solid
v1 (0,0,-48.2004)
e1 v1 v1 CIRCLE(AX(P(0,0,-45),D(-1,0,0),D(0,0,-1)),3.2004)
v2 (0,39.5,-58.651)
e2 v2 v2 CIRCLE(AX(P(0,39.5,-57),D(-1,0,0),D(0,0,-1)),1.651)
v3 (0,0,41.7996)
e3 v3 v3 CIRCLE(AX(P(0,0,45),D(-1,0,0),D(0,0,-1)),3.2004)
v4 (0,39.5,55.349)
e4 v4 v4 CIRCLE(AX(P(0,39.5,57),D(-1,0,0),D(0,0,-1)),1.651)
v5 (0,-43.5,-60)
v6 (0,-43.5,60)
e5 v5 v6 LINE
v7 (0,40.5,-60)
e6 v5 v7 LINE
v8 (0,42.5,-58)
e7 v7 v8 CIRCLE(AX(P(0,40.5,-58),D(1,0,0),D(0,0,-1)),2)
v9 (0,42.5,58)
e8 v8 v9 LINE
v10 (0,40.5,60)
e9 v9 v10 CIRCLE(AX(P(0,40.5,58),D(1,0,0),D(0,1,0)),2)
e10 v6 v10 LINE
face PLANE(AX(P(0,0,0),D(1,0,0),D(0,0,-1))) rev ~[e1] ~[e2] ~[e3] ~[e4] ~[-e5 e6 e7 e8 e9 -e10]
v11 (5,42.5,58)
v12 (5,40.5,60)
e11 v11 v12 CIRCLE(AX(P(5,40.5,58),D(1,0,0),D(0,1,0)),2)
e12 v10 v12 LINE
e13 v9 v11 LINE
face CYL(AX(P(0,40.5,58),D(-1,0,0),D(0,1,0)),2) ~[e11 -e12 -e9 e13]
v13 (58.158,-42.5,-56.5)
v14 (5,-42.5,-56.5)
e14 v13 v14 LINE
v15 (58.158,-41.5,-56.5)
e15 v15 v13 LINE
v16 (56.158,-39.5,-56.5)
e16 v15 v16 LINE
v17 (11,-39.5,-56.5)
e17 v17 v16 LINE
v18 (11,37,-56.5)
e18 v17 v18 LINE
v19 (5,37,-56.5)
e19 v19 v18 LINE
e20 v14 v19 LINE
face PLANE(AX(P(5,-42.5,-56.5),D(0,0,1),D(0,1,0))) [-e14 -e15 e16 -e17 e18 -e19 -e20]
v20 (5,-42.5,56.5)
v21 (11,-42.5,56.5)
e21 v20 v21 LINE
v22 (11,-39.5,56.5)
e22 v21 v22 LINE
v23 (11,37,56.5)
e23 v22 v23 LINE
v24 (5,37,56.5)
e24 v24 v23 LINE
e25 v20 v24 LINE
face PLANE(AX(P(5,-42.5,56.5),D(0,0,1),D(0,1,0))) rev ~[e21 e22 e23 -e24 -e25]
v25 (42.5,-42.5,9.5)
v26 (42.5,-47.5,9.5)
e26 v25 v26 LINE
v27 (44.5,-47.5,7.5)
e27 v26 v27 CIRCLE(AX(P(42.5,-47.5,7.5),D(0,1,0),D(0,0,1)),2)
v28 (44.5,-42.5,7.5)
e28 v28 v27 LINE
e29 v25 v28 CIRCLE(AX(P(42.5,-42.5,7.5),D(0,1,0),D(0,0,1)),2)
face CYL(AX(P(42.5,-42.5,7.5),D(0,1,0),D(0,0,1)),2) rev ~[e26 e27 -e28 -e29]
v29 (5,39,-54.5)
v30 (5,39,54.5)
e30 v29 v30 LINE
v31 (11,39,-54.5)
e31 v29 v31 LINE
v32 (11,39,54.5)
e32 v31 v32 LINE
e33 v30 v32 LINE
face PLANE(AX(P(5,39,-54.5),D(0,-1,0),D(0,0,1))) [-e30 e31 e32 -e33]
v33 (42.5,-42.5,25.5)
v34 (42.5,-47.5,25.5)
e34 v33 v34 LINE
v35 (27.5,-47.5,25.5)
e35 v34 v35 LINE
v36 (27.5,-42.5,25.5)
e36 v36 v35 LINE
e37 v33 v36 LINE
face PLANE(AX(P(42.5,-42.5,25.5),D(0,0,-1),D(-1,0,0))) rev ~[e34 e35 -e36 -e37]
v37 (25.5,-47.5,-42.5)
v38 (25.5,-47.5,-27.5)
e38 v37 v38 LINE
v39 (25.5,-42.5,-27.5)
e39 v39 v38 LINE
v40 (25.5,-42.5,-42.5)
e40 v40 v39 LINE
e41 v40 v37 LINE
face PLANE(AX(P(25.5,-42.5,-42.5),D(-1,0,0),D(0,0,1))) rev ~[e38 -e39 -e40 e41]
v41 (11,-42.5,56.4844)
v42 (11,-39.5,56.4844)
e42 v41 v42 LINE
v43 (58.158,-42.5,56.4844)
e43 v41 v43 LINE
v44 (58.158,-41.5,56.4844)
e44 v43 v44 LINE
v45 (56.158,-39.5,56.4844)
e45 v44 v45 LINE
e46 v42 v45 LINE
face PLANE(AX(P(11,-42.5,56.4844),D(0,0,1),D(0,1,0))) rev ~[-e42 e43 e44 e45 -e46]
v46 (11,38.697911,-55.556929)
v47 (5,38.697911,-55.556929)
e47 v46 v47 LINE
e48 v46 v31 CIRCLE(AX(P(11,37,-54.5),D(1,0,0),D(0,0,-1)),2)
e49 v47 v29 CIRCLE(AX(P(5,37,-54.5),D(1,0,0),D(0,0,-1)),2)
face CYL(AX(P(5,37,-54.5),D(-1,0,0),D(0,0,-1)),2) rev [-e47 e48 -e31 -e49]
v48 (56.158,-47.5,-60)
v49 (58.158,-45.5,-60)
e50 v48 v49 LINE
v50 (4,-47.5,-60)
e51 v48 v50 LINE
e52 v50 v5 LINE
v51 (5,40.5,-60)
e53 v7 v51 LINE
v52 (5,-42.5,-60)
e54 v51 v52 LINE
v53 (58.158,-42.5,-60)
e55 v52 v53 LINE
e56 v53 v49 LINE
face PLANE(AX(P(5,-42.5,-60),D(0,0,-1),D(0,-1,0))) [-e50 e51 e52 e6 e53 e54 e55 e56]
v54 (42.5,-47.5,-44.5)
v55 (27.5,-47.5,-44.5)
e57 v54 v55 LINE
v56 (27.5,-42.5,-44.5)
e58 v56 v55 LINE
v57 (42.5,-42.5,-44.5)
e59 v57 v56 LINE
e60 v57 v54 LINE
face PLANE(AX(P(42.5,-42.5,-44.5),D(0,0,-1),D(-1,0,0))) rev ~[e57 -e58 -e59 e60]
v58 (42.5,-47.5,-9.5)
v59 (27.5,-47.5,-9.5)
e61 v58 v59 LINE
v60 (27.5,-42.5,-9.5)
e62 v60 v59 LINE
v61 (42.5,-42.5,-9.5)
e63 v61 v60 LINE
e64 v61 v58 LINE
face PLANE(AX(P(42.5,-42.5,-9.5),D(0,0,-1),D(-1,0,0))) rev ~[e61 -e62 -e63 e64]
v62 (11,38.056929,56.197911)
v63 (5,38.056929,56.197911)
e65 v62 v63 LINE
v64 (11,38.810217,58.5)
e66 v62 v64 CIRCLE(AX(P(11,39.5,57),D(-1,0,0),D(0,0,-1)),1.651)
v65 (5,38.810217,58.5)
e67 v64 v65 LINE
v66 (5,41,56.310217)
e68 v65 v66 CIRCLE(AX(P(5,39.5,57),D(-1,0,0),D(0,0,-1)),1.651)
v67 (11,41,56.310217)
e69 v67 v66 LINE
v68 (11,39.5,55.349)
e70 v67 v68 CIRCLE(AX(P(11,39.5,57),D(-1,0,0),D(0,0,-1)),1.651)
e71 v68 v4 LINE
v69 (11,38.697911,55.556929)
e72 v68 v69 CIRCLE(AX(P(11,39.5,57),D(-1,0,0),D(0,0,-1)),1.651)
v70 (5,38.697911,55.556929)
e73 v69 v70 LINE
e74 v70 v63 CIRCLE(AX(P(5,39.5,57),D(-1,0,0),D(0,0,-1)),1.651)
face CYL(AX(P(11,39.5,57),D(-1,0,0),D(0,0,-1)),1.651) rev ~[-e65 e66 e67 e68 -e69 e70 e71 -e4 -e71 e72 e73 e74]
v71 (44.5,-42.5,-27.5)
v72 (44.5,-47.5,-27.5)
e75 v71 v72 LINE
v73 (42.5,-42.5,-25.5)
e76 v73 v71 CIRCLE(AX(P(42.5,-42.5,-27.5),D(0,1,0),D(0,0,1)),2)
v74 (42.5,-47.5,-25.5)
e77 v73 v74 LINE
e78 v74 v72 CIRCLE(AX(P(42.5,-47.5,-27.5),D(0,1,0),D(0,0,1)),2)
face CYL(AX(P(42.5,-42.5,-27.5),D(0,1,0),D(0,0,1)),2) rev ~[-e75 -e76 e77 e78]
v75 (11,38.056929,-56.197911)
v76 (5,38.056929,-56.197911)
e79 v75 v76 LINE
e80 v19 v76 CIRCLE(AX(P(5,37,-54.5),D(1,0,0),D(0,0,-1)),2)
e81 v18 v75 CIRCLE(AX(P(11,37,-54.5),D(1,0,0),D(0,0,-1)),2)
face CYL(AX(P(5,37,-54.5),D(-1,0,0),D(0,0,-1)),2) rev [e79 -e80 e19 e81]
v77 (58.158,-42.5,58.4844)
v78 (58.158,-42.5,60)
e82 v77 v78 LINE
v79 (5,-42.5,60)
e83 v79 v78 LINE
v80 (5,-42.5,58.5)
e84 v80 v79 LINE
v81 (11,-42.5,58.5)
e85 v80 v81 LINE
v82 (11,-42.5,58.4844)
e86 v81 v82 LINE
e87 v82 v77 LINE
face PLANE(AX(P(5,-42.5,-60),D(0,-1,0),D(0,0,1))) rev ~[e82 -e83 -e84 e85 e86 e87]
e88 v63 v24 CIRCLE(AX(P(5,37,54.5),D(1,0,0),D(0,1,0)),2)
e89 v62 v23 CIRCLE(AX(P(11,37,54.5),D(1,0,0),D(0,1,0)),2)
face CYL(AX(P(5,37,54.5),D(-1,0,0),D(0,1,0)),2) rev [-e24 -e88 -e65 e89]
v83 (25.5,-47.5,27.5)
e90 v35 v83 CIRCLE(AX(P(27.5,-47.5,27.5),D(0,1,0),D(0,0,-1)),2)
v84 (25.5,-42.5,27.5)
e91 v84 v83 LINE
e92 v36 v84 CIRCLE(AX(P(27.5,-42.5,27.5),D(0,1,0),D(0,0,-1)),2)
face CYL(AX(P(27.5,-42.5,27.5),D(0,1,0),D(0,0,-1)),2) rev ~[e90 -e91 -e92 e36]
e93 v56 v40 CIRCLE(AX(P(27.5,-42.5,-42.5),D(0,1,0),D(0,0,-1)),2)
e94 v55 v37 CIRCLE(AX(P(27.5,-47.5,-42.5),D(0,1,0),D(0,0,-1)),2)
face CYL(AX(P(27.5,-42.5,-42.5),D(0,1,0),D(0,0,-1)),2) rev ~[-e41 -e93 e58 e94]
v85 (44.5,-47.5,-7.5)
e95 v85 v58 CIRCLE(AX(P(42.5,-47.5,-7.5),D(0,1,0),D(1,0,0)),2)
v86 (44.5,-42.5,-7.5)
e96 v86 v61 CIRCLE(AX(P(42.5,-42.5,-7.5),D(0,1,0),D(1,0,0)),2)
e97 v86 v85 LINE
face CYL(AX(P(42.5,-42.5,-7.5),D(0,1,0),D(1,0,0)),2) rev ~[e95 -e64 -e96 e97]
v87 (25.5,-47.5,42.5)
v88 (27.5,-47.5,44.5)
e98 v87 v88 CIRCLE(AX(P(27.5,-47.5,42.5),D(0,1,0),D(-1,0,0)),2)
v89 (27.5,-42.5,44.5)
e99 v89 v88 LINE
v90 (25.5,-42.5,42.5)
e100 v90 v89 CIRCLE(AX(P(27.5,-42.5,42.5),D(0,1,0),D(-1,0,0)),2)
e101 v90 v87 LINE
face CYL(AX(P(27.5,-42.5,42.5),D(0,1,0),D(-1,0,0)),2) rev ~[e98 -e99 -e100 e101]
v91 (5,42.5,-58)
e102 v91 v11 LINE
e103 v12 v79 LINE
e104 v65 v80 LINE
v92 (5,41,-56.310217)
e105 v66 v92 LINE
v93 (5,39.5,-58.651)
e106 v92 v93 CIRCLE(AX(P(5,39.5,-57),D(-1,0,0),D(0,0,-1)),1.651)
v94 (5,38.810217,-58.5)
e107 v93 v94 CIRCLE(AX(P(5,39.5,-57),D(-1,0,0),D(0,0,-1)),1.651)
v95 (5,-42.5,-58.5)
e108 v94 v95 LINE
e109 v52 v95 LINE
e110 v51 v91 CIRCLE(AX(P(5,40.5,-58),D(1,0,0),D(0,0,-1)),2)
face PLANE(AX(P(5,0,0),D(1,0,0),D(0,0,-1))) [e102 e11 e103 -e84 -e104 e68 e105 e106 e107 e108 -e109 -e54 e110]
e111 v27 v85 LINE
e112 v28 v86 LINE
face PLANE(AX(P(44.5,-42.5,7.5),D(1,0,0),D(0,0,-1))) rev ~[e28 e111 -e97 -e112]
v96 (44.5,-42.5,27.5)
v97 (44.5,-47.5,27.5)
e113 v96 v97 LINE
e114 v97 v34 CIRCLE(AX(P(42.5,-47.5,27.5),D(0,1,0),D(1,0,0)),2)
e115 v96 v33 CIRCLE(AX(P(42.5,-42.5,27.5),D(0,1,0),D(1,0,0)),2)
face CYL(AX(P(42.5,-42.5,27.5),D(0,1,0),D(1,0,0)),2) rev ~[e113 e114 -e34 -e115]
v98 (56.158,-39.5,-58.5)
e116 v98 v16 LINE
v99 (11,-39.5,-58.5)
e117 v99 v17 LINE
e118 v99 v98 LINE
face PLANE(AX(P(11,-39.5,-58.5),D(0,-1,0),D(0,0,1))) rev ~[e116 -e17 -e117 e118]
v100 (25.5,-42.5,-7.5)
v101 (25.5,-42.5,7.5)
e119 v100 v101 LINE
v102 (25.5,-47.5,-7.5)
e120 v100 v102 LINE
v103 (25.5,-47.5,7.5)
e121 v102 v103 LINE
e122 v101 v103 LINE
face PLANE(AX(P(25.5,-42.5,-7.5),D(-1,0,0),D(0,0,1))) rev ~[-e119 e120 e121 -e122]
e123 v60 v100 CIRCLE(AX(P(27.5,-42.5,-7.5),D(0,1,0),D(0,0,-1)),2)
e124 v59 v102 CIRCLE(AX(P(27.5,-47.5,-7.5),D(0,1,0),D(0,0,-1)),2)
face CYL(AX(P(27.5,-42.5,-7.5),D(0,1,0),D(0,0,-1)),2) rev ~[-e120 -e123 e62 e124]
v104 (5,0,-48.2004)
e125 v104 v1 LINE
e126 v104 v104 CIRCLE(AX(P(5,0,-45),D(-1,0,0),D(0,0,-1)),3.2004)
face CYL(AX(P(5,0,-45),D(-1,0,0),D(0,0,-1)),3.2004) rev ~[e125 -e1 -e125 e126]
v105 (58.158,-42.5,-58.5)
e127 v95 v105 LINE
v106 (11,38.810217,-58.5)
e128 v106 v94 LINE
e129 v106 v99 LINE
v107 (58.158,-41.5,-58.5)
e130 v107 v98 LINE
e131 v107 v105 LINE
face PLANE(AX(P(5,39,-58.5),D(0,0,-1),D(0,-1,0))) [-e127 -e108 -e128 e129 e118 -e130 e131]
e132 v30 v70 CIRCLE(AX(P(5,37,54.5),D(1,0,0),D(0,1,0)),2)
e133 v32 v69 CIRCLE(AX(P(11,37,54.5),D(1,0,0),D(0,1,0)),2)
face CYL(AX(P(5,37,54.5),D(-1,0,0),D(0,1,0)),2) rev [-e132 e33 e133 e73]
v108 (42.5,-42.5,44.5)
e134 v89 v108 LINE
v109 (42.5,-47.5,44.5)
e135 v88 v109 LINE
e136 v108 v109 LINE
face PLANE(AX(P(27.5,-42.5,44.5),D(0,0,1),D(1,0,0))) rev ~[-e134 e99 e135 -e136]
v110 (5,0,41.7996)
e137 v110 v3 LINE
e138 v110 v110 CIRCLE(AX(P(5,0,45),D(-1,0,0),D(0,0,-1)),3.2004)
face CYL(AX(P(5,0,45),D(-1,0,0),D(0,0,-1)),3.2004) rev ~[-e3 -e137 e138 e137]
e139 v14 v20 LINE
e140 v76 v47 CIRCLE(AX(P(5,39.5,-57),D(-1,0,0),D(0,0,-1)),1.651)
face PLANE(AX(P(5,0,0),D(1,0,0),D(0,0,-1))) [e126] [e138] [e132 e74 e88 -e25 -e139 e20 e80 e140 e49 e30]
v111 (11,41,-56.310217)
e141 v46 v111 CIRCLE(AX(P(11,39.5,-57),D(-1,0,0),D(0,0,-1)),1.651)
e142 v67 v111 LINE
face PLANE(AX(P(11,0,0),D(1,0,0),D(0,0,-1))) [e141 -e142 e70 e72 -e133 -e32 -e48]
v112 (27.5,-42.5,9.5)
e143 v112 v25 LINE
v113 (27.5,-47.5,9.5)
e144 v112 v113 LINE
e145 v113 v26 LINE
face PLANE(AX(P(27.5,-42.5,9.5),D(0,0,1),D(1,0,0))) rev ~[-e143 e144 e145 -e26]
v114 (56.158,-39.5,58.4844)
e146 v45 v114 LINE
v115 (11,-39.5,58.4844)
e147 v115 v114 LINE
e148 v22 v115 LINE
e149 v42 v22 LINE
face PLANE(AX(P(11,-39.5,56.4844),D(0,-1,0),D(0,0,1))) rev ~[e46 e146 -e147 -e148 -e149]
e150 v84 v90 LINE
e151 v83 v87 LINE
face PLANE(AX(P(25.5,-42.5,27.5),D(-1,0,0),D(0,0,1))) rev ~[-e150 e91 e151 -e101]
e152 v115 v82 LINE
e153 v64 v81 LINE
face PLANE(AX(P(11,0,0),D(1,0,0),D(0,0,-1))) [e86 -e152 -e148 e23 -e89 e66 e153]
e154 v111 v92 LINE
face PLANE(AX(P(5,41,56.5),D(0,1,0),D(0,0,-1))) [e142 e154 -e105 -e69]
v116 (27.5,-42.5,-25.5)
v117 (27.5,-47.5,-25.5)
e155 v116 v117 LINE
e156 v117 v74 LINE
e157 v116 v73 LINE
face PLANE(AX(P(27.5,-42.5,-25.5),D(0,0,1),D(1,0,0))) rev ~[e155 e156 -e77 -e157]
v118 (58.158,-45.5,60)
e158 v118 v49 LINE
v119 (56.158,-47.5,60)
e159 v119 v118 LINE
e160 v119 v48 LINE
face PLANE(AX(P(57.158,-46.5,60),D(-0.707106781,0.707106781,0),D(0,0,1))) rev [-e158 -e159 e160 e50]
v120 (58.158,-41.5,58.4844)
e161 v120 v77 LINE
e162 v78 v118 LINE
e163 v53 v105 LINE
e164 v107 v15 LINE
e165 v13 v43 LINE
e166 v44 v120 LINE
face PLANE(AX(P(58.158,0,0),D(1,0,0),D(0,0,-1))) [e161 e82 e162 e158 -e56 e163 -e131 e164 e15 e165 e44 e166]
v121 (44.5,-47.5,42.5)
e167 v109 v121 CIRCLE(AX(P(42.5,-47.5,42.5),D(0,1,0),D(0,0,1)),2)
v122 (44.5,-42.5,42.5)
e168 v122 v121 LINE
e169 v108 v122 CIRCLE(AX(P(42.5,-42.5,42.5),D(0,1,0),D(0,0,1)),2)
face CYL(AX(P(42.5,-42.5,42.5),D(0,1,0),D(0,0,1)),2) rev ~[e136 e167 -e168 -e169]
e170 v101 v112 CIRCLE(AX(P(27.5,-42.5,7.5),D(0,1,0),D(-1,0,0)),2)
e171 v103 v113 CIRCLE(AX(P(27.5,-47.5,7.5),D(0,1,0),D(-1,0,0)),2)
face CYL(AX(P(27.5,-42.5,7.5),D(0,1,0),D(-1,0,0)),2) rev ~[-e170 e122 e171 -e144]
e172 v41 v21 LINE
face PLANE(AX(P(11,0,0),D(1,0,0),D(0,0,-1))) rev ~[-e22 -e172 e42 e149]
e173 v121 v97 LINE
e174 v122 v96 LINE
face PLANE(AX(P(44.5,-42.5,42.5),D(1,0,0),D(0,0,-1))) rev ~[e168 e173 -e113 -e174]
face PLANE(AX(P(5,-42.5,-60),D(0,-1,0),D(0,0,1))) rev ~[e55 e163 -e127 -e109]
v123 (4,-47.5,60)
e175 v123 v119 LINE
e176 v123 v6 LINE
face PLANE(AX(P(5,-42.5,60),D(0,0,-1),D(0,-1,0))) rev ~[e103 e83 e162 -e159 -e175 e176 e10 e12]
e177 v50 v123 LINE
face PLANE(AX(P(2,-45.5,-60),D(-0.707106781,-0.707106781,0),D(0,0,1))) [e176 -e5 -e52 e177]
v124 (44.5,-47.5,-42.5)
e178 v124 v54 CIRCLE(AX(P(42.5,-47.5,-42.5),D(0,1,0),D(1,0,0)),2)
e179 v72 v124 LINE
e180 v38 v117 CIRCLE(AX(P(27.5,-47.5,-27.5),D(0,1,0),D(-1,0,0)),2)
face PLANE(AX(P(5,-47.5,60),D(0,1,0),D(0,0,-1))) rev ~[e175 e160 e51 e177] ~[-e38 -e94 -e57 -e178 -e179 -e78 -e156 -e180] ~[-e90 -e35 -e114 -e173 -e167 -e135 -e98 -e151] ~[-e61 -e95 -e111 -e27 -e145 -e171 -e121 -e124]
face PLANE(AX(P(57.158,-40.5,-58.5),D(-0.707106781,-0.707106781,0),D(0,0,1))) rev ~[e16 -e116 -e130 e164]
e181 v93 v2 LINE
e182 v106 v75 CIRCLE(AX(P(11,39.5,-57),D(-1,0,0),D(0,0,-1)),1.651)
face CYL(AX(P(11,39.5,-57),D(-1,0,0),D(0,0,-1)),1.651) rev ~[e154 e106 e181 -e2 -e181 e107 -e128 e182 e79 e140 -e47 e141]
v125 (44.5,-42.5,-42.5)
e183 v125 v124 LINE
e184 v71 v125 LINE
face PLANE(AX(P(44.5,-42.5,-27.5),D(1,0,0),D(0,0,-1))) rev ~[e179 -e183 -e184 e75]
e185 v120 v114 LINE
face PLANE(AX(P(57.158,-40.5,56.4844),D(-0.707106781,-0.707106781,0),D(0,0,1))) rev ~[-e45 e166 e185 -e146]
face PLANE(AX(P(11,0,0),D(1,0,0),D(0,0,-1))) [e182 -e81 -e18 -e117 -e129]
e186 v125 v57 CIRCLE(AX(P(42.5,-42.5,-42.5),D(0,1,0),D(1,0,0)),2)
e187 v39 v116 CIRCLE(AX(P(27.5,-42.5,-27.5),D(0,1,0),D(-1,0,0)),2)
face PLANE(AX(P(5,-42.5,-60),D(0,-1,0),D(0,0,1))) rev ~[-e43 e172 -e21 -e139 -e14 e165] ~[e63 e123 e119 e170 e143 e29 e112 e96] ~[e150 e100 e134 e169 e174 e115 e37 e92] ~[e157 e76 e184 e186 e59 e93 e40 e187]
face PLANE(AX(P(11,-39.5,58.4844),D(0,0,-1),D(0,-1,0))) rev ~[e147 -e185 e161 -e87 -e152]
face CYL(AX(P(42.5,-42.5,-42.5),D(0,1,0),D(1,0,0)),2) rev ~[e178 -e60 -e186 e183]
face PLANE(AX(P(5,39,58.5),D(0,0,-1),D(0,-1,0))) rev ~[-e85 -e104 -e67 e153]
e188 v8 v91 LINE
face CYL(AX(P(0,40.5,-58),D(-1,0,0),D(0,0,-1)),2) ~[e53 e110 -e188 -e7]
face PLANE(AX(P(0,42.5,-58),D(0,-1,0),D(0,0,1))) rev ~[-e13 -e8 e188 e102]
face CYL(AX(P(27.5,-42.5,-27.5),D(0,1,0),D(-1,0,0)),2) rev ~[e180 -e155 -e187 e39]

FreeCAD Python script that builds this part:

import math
import FreeCAD as App
import Part
import Sketcher
Q = App.Units.Quantity


def edges_at(feature, points):
    """Names of the edges that pass closest to the given points."""
    edges = feature.Shape.Edges
    near = lambda p: min(range(len(edges)), key=lambda i: edges[i].distToShape(Part.Vertex(*p))[0])
    return sorted({f"Edge{near(p) + 1}" for p in points})

doc = App.newDocument("Part")
params = doc.addObject("Spreadsheet::Sheet", "Params")
for row, (alias, value) in enumerate([
    ("sketch1_radius", "2 mm"),
    ("sketch1_height", "120 mm"),
    ("pad1_length", "5 mm"),
    ("sketch2_radius", "2 mm"),
    ("sketch2_height", "109 mm"),
    ("sketch2_width", "81.5 mm"),
    ("pad2_length", "6 mm"),
    ("hole_diameter", "3.302 mm"),
    ("hole_depth", "40 mm"),
    ("hole2_diameter", "3.302 mm"),
    ("hole2_depth", "40 mm"),
    ("sketch5_width", "5 mm"),
    ("sketch5_height", "120 mm"),
    ("pad3_length", "5 mm"),
    ("sketch6_width", "5 mm"),
    ("sketch6_height", "120 mm"),
    ("pad4_length", "53.158 mm"),
    ("sketch7_width", "3 mm"),
    ("sketch7_height", "2 mm"),
    ("pad5_length", "47.158 mm"),
    ("chamfer_size", "2 mm"),
    ("chamfer2_size", "4 mm"),
    ("chamfer3_size", "2 mm"),
    ("hole3_diameter", "6.4008 mm"),
    ("hole3_depth", "22.931 mm"),
    ("hole4_diameter", "6.4008 mm"),
    ("hole4_depth", "22.931 mm"),
    ("sketch10_radius", "2 mm"),
    ("sketch10_width", "15 mm"),
], start=1):
    params.set(f"A{row}", alias)
    params.set(f"B{row}", "=" + value)
    params.setAlias(f"B{row}", alias)

body = doc.addObject("PartDesign::Body", "Body")

sketch1 = doc.addObject("Sketcher::SketchObject", "Sketch")
body.addObject(sketch1)
sketch1.AttachmentSupport = (doc.YZ_Plane, [""])
sketch1.MapMode = "FlatFace"
sketch1.addGeometry(Part.ArcOfCircle(Part.Circle(App.Vector(40.5, 58, 0), App.Vector(0, 0, 1), 2), math.radians(0), math.radians(90)), False)
sketch1.addGeometry(Part.LineSegment(App.Vector(40.5, 60, 0), App.Vector(-42.5, 60, 0)), False)
sketch1.addGeometry(Part.LineSegment(App.Vector(-42.5, 60, 0), App.Vector(-42.5, -60, 0)), False)
sketch1.addGeometry(Part.LineSegment(App.Vector(-42.5, -60, 0), App.Vector(40.5, -60, 0)), False)
sketch1.addGeometry(Part.ArcOfCircle(Part.Circle(App.Vector(40.5, -58, 0), App.Vector(0, 0, 1), 2), math.radians(-90), math.radians(0)), False)
sketch1.addGeometry(Part.LineSegment(App.Vector(42.5, -58, 0), App.Vector(42.5, 58, 0)), False)
sketch1.addConstraint(Sketcher.Constraint("Tangent", 0, 2, 1, 1))
sketch1.addConstraint(Sketcher.Constraint("Coincident", 1, 2, 2, 1))
sketch1.addConstraint(Sketcher.Constraint("Coincident", 2, 2, 3, 1))
sketch1.addConstraint(Sketcher.Constraint("Tangent", 3, 2, 4, 1))
sketch1.addConstraint(Sketcher.Constraint("Tangent", 4, 2, 5, 1))
sketch1.addConstraint(Sketcher.Constraint("Tangent", 5, 2, 0, 1))
sketch1.addConstraint(Sketcher.Constraint("Horizontal", 1))
sketch1.addConstraint(Sketcher.Constraint("Vertical", 2))
sketch1.addConstraint(Sketcher.Constraint("Horizontal", 3))
sketch1.addConstraint(Sketcher.Constraint("Vertical", 5))
sketch1.addConstraint(Sketcher.Constraint("Equal", 0, 4))
sketch1.addConstraint(Sketcher.Constraint("Radius", 0, Q("2 mm")))
sketch1.addConstraint(Sketcher.Constraint("DistanceY", 2, 2, 2, 1, Q("120 mm")))
sketch1.addConstraint(Sketcher.Constraint("DistanceX", 2, 2, 4, 2, Q("85 mm")))
sketch1.addConstraint(Sketcher.Constraint("DistanceY", -1, 1, 0, 3, Q("58 mm")))
sketch1.addConstraint(Sketcher.Constraint("DistanceX", -1, 1, 0, 3, Q("40.5 mm")))
sketch1.setExpression("Constraints[11]", "Params.sketch1_radius")
sketch1.setExpression("Constraints[12]", "Params.sketch1_height")
pad1 = doc.addObject("PartDesign::Pad", "Pad")
body.addObject(pad1)
pad1.Profile = sketch1
pad1.setExpression("Length", "Params.pad1_length")

sketch2 = doc.addObject("Sketcher::SketchObject", "Sketch001")
body.addObject(sketch2)
sketch2.AttachmentSupport = (doc.YZ_Plane, [""])
sketch2.MapMode = "FlatFace"
sketch2.AttachmentOffset = App.Placement(App.Vector(0, 0, 5), App.Rotation())
sketch2.addGeometry(Part.LineSegment(App.Vector(39, 58.5, 0), App.Vector(-42.5, 58.5, 0)), False)
sketch2.addGeometry(Part.LineSegment(App.Vector(-42.5, 58.5, 0), App.Vector(-42.5, 56.5, 0)), False)
sketch2.addGeometry(Part.LineSegment(App.Vector(-42.5, 56.5, 0), App.Vector(37, 56.5, 0)), False)
sketch2.addGeometry(Part.ArcOfCircle(Part.Circle(App.Vector(37, 54.5, 0), App.Vector(0, 0, 1), 2), math.radians(0), math.radians(90)), False)
sketch2.addGeometry(Part.LineSegment(App.Vector(39, 54.5, 0), App.Vector(39, -54.5, 0)), False)
sketch2.addGeometry(Part.ArcOfCircle(Part.Circle(App.Vector(37, -54.5, 0), App.Vector(0, 0, 1), 2), math.radians(-90), math.radians(0)), False)
sketch2.addGeometry(Part.LineSegment(App.Vector(37, -56.5, 0), App.Vector(-42.5, -56.5, 0)), False)
sketch2.addGeometry(Part.LineSegment(App.Vector(-42.5, -56.5, 0), App.Vector(-42.5, -58.5, 0)), False)
sketch2.addGeometry(Part.LineSegment(App.Vector(-42.5, -58.5, 0), App.Vector(39, -58.5, 0)), False)
sketch2.addGeometry(Part.ArcOfCircle(Part.Circle(App.Vector(39, -56.5, 0), App.Vector(0, 0, 1), 2), math.radians(-90), math.radians(0)), False)
sketch2.addGeometry(Part.LineSegment(App.Vector(41, -56.5, 0), App.Vector(41, 56.5, 0)), False)
sketch2.addGeometry(Part.ArcOfCircle(Part.Circle(App.Vector(39, 56.5, 0), App.Vector(0, 0, 1), 2), math.radians(0), math.radians(90)), False)
sketch2.addConstraint(Sketcher.Constraint("Coincident", 0, 2, 1, 1))
sketch2.addConstraint(Sketcher.Constraint("Coincident", 1, 2, 2, 1))
sketch2.addConstraint(Sketcher.Constraint("Tangent", 2, 2, 3, 2))
sketch2.addConstraint(Sketcher.Constraint("Tangent", 3, 1, 4, 1))
sketch2.addConstraint(Sketcher.Constraint("Tangent", 4, 2, 5, 2))
sketch2.addConstraint(Sketcher.Constraint("Tangent", 5, 1, 6, 1))
sketch2.addConstraint(Sketcher.Constraint("Coincident", 6, 2, 7, 1))
sketch2.addConstraint(Sketcher.Constraint("Coincident", 7, 2, 8, 1))
sketch2.addConstraint(Sketcher.Constraint("Tangent", 8, 2, 9, 1))
sketch2.addConstraint(Sketcher.Constraint("Tangent", 9, 2, 10, 1))
sketch2.addConstraint(Sketcher.Constraint("Tangent", 10, 2, 11, 1))
sketch2.addConstraint(Sketcher.Constraint("Tangent", 11, 2, 0, 1))
sketch2.addConstraint(Sketcher.Constraint("Horizontal", 0))
sketch2.addConstraint(Sketcher.Constraint("Vertical", 1))
sketch2.addConstraint(Sketcher.Constraint("Horizontal", 2))
sketch2.addConstraint(Sketcher.Constraint("Vertical", 4))
sketch2.addConstraint(Sketcher.Constraint("Horizontal", 6))
sketch2.addConstraint(Sketcher.Constraint("Vertical", 7))
sketch2.addConstraint(Sketcher.Constraint("Horizontal", 8))
sketch2.addConstraint(Sketcher.Constraint("Vertical", 10))
sketch2.addConstraint(Sketcher.Constraint("Equal", 3, 5))
sketch2.addConstraint(Sketcher.Constraint("Equal", 5, 9))
sketch2.addConstraint(Sketcher.Constraint("Equal", 9, 11))
sketch2.addConstraint(Sketcher.Constraint("Symmetric", 1, 2, 6, 2, -1))
sketch2.addConstraint(Sketcher.Constraint("Horizontal", 11, 3, 1, 2))
sketch2.addConstraint(Sketcher.Constraint("Horizontal", 9, 3, 5, 1))
sketch2.addConstraint(Sketcher.Constraint("Vertical", 11, 3, 3, 1))
sketch2.addConstraint(Sketcher.Constraint("Radius", 3, Q("2 mm")))
sketch2.addConstraint(Sketcher.Constraint("DistanceY", 4, 2, 4, 1, Q("109 mm")))
sketch2.addConstraint(Sketcher.Constraint("DistanceX", 0, 2, 0, 1, Q("81.5 mm")))
sketch2.addConstraint(Sketcher.Constraint("DistanceX", -1, 1, 3, 3, Q("37 mm")))
sketch2.setExpression("Constraints[27]", "Params.sketch2_radius")
sketch2.setExpression("Constraints[28]", "Params.sketch2_height")
sketch2.setExpression("Constraints[29]", "Params.sketch2_width")
pad2 = doc.addObject("PartDesign::Pad", "Pad001")
body.addObject(pad2)
pad2.Profile = sketch2
pad2.setExpression("Length", "Params.pad2_length")

sketch3 = doc.addObject("Sketcher::SketchObject", "Sketch002")
body.addObject(sketch3)
sketch3.AttachmentSupport = (doc.YZ_Plane, [""])
sketch3.MapMode = "FlatFace"
sketch3.AttachmentOffset = App.Placement(App.Vector(0, 0, 11), App.Rotation())
sketch3.addGeometry(Part.Circle(App.Vector(39.5, 57, 0), App.Vector(0, 0, 1), 1.7), False)
sketch3.addConstraint(Sketcher.Constraint("Diameter", 0, Q("3.302 mm")))
sketch3.addConstraint(Sketcher.Constraint("DistanceY", -1, 1, 0, 3, Q("57 mm")))
sketch3.addConstraint(Sketcher.Constraint("DistanceX", -1, 1, 0, 3, Q("39.5 mm")))
doc.recompute()
hole = doc.addObject("PartDesign::Hole", "Hole")
body.addObject(hole)
hole.Profile = sketch3
hole.ThreadType = "None"
hole.setExpression("Diameter", "Params.hole_diameter")
hole.DepthType = "Dimension"
hole.setExpression("Depth", "Params.hole_depth")
hole.DrillPoint = "Angled"
hole.DrillPointAngle = 118

sketch4 = doc.addObject("Sketcher::SketchObject", "Sketch003")
body.addObject(sketch4)
sketch4.AttachmentSupport = (doc.YZ_Plane, [""])
sketch4.MapMode = "FlatFace"
sketch4.AttachmentOffset = App.Placement(App.Vector(0, 0, 11), App.Rotation())
sketch4.addGeometry(Part.Circle(App.Vector(39.5, -57, 0), App.Vector(0, 0, 1), 1.7), False)
sketch4.addConstraint(Sketcher.Constraint("Diameter", 0, Q("3.302 mm")))
sketch4.addConstraint(Sketcher.Constraint("DistanceY", 0, 3, -1, 1, Q("57 mm")))
sketch4.addConstraint(Sketcher.Constraint("DistanceX", -1, 1, 0, 3, Q("39.5 mm")))
doc.recompute()
hole2 = doc.addObject("PartDesign::Hole", "Hole001")
body.addObject(hole2)
hole2.Profile = sketch4
hole2.ThreadType = "None"
hole2.setExpression("Diameter", "Params.hole2_diameter")
hole2.DepthType = "Dimension"
hole2.setExpression("Depth", "Params.hole2_depth")
hole2.DrillPoint = "Angled"
hole2.DrillPointAngle = 118

sketch5 = doc.addObject("Sketcher::SketchObject", "Sketch004")
body.addObject(sketch5)
sketch5.AttachmentSupport = (doc.YZ_Plane, [""])
sketch5.MapMode = "FlatFace"
sketch5.AttachmentOffset = App.Placement(App.Vector(0, 0, 5), App.Rotation())
sketch5.addGeometry(Part.LineSegment(App.Vector(-42, -60, 0), App.Vector(-42, 60, 0)), False)
sketch5.addGeometry(Part.LineSegment(App.Vector(-42, 60, 0), App.Vector(-48, 60, 0)), False)
sketch5.addGeometry(Part.LineSegment(App.Vector(-48, 60, 0), App.Vector(-48, -60, 0)), False)
sketch5.addGeometry(Part.LineSegment(App.Vector(-48, -60, 0), App.Vector(-42, -60, 0)), False)
sketch5.addConstraint(Sketcher.Constraint("Coincident", 0, 2, 1, 1))
sketch5.addConstraint(Sketcher.Constraint("Coincident", 1, 2, 2, 1))
sketch5.addConstraint(Sketcher.Constraint("Coincident", 2, 2, 3, 1))
sketch5.addConstraint(Sketcher.Constraint("Coincident", 3, 2, 0, 1))
sketch5.addConstraint(Sketcher.Constraint("Vertical", 0))
sketch5.addConstraint(Sketcher.Constraint("Horizontal", 1))
sketch5.addConstraint(Sketcher.Constraint("Vertical", 2))
sketch5.addConstraint(Sketcher.Constraint("Horizontal", 3))
sketch5.addConstraint(Sketcher.Constraint("DistanceX", 1, 2, 1, 1, Q("5 mm")))
sketch5.addConstraint(Sketcher.Constraint("DistanceY", 0, 1, 0, 2, Q("120 mm")))
sketch5.addConstraint(Sketcher.Constraint("DistanceY", -1, 1, 0, 2, Q("60 mm")))
sketch5.addConstraint(Sketcher.Constraint("DistanceX", 0, 2, -1, 1, Q("42.5 mm")))
sketch5.setExpression("Constraints[8]", "Params.sketch5_width")
sketch5.setExpression("Constraints[9]", "Params.sketch5_height")
pad3 = doc.addObject("PartDesign::Pad", "Pad002")
body.addObject(pad3)
pad3.Profile = sketch5
pad3.setExpression("Length", "Params.pad3_length")
pad3.Reversed = True

sketch6 = doc.addObject("Sketcher::SketchObject", "Sketch005")
body.addObject(sketch6)
sketch6.AttachmentSupport = (doc.YZ_Plane, [""])
sketch6.MapMode = "FlatFace"
sketch6.AttachmentOffset = App.Placement(App.Vector(0, 0, 5), App.Rotation())
sketch6.addGeometry(Part.LineSegment(App.Vector(-42, -60, 0), App.Vector(-42, 60, 0)), False)
sketch6.addGeometry(Part.LineSegment(App.Vector(-42, 60, 0), App.Vector(-48, 60, 0)), False)
sketch6.addGeometry(Part.LineSegment(App.Vector(-48, 60, 0), App.Vector(-48, -60, 0)), False)
sketch6.addGeometry(Part.LineSegment(App.Vector(-48, -60, 0), App.Vector(-42, -60, 0)), False)
sketch6.addConstraint(Sketcher.Constraint("Coincident", 0, 2, 1, 1))
sketch6.addConstraint(Sketcher.Constraint("Coincident", 1, 2, 2, 1))
sketch6.addConstraint(Sketcher.Constraint("Coincident", 2, 2, 3, 1))
sketch6.addConstraint(Sketcher.Constraint("Coincident", 3, 2, 0, 1))
sketch6.addConstraint(Sketcher.Constraint("Vertical", 0))
sketch6.addConstraint(Sketcher.Constraint("Horizontal", 1))
sketch6.addConstraint(Sketcher.Constraint("Vertical", 2))
sketch6.addConstraint(Sketcher.Constraint("Horizontal", 3))
sketch6.addConstraint(Sketcher.Constraint("DistanceX", 1, 2, 1, 1, Q("5 mm")))
sketch6.addConstraint(Sketcher.Constraint("DistanceY", 0, 1, 0, 2, Q("120 mm")))
sketch6.addConstraint(Sketcher.Constraint("DistanceY", -1, 1, 0, 2, Q("60 mm")))
sketch6.addConstraint(Sketcher.Constraint("DistanceX", 0, 2, -1, 1, Q("42.5 mm")))
sketch6.setExpression("Constraints[8]", "Params.sketch6_width")
sketch6.setExpression("Constraints[9]", "Params.sketch6_height")
pad4 = doc.addObject("PartDesign::Pad", "Pad003")
body.addObject(pad4)
pad4.Profile = sketch6
pad4.setExpression("Length", "Params.pad4_length")

sketch7 = doc.addObject("Sketcher::SketchObject", "Sketch006")
body.addObject(sketch7)
sketch7.AttachmentSupport = (doc.YZ_Plane, [""])
sketch7.MapMode = "FlatFace"
sketch7.AttachmentOffset = App.Placement(App.Vector(0, 0, 11), App.Rotation())
sketch7.addGeometry(Part.LineSegment(App.Vector(-42.5, 58.5, 0), App.Vector(-42.5, 56.5, 0)), False)
sketch7.addGeometry(Part.LineSegment(App.Vector(-42.5, 56.5, 0), App.Vector(-39.5, 56.5, 0)), False)
sketch7.addGeometry(Part.LineSegment(App.Vector(-39.5, 56.5, 0), App.Vector(-39.5, 58.5, 0)), False)
sketch7.addGeometry(Part.LineSegment(App.Vector(-39.5, 58.5, 0), App.Vector(-42.5, 58.5, 0)), False)
sketch7.addGeometry(Part.LineSegment(App.Vector(-42.5, -56.5, 0), App.Vector(-42.5, -58.5, 0)), False)
sketch7.addGeometry(Part.LineSegment(App.Vector(-42.5, -58.5, 0), App.Vector(-39.5, -58.5, 0)), False)
sketch7.addGeometry(Part.LineSegment(App.Vector(-39.5, -58.5, 0), App.Vector(-39.5, -56.5, 0)), False)
sketch7.addGeometry(Part.LineSegment(App.Vector(-39.5, -56.5, 0), App.Vector(-42.5, -56.5, 0)), False)
sketch7.addConstraint(Sketcher.Constraint("Coincident", 0, 2, 1, 1))
sketch7.addConstraint(Sketcher.Constraint("Coincident", 1, 2, 2, 1))
sketch7.addConstraint(Sketcher.Constraint("Coincident", 2, 2, 3, 1))
sketch7.addConstraint(Sketcher.Constraint("Coincident", 3, 2, 0, 1))
sketch7.addConstraint(Sketcher.Constraint("Coincident", 4, 2, 5, 1))
sketch7.addConstraint(Sketcher.Constraint("Coincident", 5, 2, 6, 1))
sketch7.addConstraint(Sketcher.Constraint("Coincident", 6, 2, 7, 1))
sketch7.addConstraint(Sketcher.Constraint("Coincident", 7, 2, 4, 1))
sketch7.addConstraint(Sketcher.Constraint("Vertical", 0))
sketch7.addConstraint(Sketcher.Constraint("Horizontal", 1))
sketch7.addConstraint(Sketcher.Constraint("Vertical", 2))
sketch7.addConstraint(Sketcher.Constraint("Horizontal", 3))
sketch7.addConstraint(Sketcher.Constraint("Vertical", 4))
sketch7.addConstraint(Sketcher.Constraint("Horizontal", 5))
sketch7.addConstraint(Sketcher.Constraint("Vertical", 6))
sketch7.addConstraint(Sketcher.Constraint("Horizontal", 7))
sketch7.addConstraint(Sketcher.Constraint("Vertical", 3, 2, 4, 2))
sketch7.addConstraint(Sketcher.Constraint("Vertical", 2, 2, 5, 2))
sketch7.addConstraint(Sketcher.Constraint("Equal", 2, 4))
sketch7.addConstraint(Sketcher.Constraint("DistanceX", 1, 1, 1, 2, Q("3 mm")))
sketch7.addConstraint(Sketcher.Constraint("DistanceY", 0, 2, 0, 1, Q("2 mm")))
sketch7.addConstraint(Sketcher.Constraint("DistanceX", 0, 2, -1, 1, Q("42.5 mm")))
sketch7.addConstraint(Sketcher.Constraint("DistanceY", 4, 2, -1, 1, Q("58.5 mm")))
sketch7.addConstraint(Sketcher.Constraint("DistanceY", -1, 1, 0, 2, Q("56.4844 mm")))
sketch7.setExpression("Constraints[19]", "Params.sketch7_width")
sketch7.setExpression("Constraints[20]", "Params.sketch7_height")
pad5 = doc.addObject("PartDesign::Pad", "Pad004")
body.addObject(pad5)
pad5.Profile = sketch7
pad5.setExpression("Length", "Params.pad5_length")
doc.recompute()

chamfer = doc.addObject("PartDesign::Chamfer", "Chamfer")
body.addObject(chamfer)
chamfer.Base = (pad5, edges_at(pad5, [(58.158, -39.5, 57.484), (58.158, -39.5, -57.5)]))
chamfer.setExpression("Size", "Params.chamfer_size")
doc.recompute()

chamfer2 = doc.addObject("PartDesign::Chamfer", "Chamfer001")
body.addObject(chamfer2)
chamfer2.Base = (chamfer, edges_at(chamfer, [(0, -47.5, 0)]))
chamfer2.setExpression("Size", "Params.chamfer2_size")
doc.recompute()

chamfer3 = doc.addObject("PartDesign::Chamfer", "Chamfer002")
body.addObject(chamfer3)
chamfer3.Base = (chamfer2, edges_at(chamfer2, [(58.158, -47.5, 0)]))
chamfer3.setExpression("Size", "Params.chamfer3_size")

sketch8 = doc.addObject("Sketcher::SketchObject", "Sketch007")
body.addObject(sketch8)
sketch8.AttachmentSupport = (doc.YZ_Plane, [""])
sketch8.MapMode = "FlatFace"
sketch8.AttachmentOffset = App.Placement(App.Vector(0, 0, 5), App.Rotation())
sketch8.addGeometry(Part.Circle(App.Vector(0, 45, 0), App.Vector(0, 0, 1), 3.2), False)
sketch8.addConstraint(Sketcher.Constraint("PointOnObject", 0, 3, -2))
sketch8.addConstraint(Sketcher.Constraint("DistanceY", -1, 1, 0, 3, Q("45 mm")))
sketch8.addConstraint(Sketcher.Constraint("Diameter", 0, Q("6.4008 mm")))
doc.recompute()
hole3 = doc.addObject("PartDesign::Hole", "Hole002")
body.addObject(hole3)
hole3.Profile = sketch8
hole3.ThreadType = "None"
hole3.setExpression("Diameter", "Params.hole3_diameter")
hole3.DepthType = "Dimension"
hole3.setExpression("Depth", "Params.hole3_depth")
hole3.DrillPoint = "Angled"
hole3.DrillPointAngle = 118

sketch9 = doc.addObject("Sketcher::SketchObject", "Sketch008")
body.addObject(sketch9)
sketch9.AttachmentSupport = (doc.YZ_Plane, [""])
sketch9.MapMode = "FlatFace"
sketch9.AttachmentOffset = App.Placement(App.Vector(0, 0, 5), App.Rotation())
sketch9.addGeometry(Part.Circle(App.Vector(0, -45, 0), App.Vector(0, 0, 1), 3.2), False)
sketch9.addConstraint(Sketcher.Constraint("PointOnObject", 0, 3, -2))
sketch9.addConstraint(Sketcher.Constraint("DistanceY", 0, 3, -1, 1, Q("45 mm")))
sketch9.addConstraint(Sketcher.Constraint("Diameter", 0, Q("6.4008 mm")))
doc.recompute()
hole4 = doc.addObject("PartDesign::Hole", "Hole003")
body.addObject(hole4)
hole4.Profile = sketch9
hole4.ThreadType = "None"
hole4.setExpression("Diameter", "Params.hole4_diameter")
hole4.DepthType = "Dimension"
hole4.setExpression("Depth", "Params.hole4_depth")
hole4.DrillPoint = "Angled"
hole4.DrillPointAngle = 118

sketch10 = doc.addObject("Sketcher::SketchObject", "Sketch009")
body.addObject(sketch10)
sketch10.AttachmentSupport = (doc.XZ_Plane, [""])
sketch10.MapMode = "FlatFace"
sketch10.AttachmentOffset = App.Placement(App.Vector(0, 0, 42.5), App.Rotation())
sketch10.addGeometry(Part.ArcOfCircle(Part.Circle(App.Vector(27.5, 7.5, 0), App.Vector(0, 0, 1), 2), math.radians(90), math.radians(180)), False)
sketch10.addGeometry(Part.LineSegment(App.Vector(27.5, 9.5, 0), App.Vector(42.5, 9.5, 0)), False)
sketch10.addGeometry(Part.ArcOfCircle(Part.Circle(App.Vector(42.5, 7.5, 0), App.Vector(0, 0, 1), 2), math.radians(0), math.radians(90)), False)
sketch10.addGeometry(Part.LineSegment(App.Vector(44.5, 7.5, 0), App.Vector(44.5, -7.5, 0)), False)
sketch10.addGeometry(Part.ArcOfCircle(Part.Circle(App.Vector(42.5, -7.5, 0), App.Vector(0, 0, 1), 2), math.radians(-90), math.radians(0)), False)
sketch10.addGeometry(Part.LineSegment(App.Vector(42.5, -9.5, 0), App.Vector(27.5, -9.5, 0)), False)
sketch10.addGeometry(Part.ArcOfCircle(Part.Circle(App.Vector(27.5, -7.5, 0), App.Vector(0, 0, 1), 2), math.radians(180), math.radians(270)), False)
sketch10.addGeometry(Part.LineSegment(App.Vector(25.5, -7.5, 0), App.Vector(25.5, 7.5, 0)), False)
sketch10.addGeometry(Part.ArcOfCircle(Part.Circle(App.Vector(27.5, 42.5, 0), App.Vector(0, 0, 1), 2), math.radians(90), math.radians(180)), False)
sketch10.addGeometry(Part.LineSegment(App.Vector(27.5, 44.5, 0), App.Vector(42.5, 44.5, 0)), False)
sketch10.addGeometry(Part.ArcOfCircle(Part.Circle(App.Vector(42.5, 42.5, 0), App.Vector(0, 0, 1), 2), math.radians(0), math.radians(90)), False)
sketch10.addGeometry(Part.LineSegment(App.Vector(44.5, 42.5, 0), App.Vector(44.5, 27.5, 0)), False)
sketch10.addGeometry(Part.ArcOfCircle(Part.Circle(App.Vector(42.5, 27.5, 0), App.Vector(0, 0, 1), 2), math.radians(-90), math.radians(0)), False)
sketch10.addGeometry(Part.LineSegment(App.Vector(42.5, 25.5, 0), App.Vector(27.5, 25.5, 0)), False)
sketch10.addGeometry(Part.ArcOfCircle(Part.Circle(App.Vector(27.5, 27.5, 0), App.Vector(0, 0, 1), 2), math.radians(180), math.radians(270)), False)
sketch10.addGeometry(Part.LineSegment(App.Vector(25.5, 27.5, 0), App.Vector(25.5, 42.5, 0)), False)
sketch10.addGeometry(Part.ArcOfCircle(Part.Circle(App.Vector(27.5, -27.5, 0), App.Vector(0, 0, 1), 2), math.radians(90), math.radians(180)), False)
sketch10.addGeometry(Part.LineSegment(App.Vector(27.5, -25.5, 0), App.Vector(42.5, -25.5, 0)), False)
sketch10.addGeometry(Part.ArcOfCircle(Part.Circle(App.Vector(42.5, -27.5, 0), App.Vector(0, 0, 1), 2), math.radians(0), math.radians(90)), False)
sketch10.addGeometry(Part.LineSegment(App.Vector(44.5, -27.5, 0), App.Vector(44.5, -42.5, 0)), False)
sketch10.addGeometry(Part.ArcOfCircle(Part.Circle(App.Vector(42.5, -42.5, 0), App.Vector(0, 0, 1), 2), math.radians(-90), math.radians(0)), False)
sketch10.addGeometry(Part.LineSegment(App.Vector(42.5, -44.5, 0), App.Vector(27.5, -44.5, 0)), False)
sketch10.addGeometry(Part.ArcOfCircle(Part.Circle(App.Vector(27.5, -42.5, 0), App.Vector(0, 0, 1), 2), math.radians(180), math.radians(270)), False)
sketch10.addGeometry(Part.LineSegment(App.Vector(25.5, -42.5, 0), App.Vector(25.5, -27.5, 0)), False)
sketch10.addConstraint(Sketcher.Constraint("Tangent", 0, 1, 1, 1))
sketch10.addConstraint(Sketcher.Constraint("Tangent", 1, 2, 2, 2))
sketch10.addConstraint(Sketcher.Constraint("Tangent", 2, 1, 3, 1))
sketch10.addConstraint(Sketcher.Constraint("Tangent", 3, 2, 4, 2))
sketch10.addConstraint(Sketcher.Constraint("Tangent", 4, 1, 5, 1))
sketch10.addConstraint(Sketcher.Constraint("Tangent", 5, 2, 6, 2))
sketch10.addConstraint(Sketcher.Constraint("Tangent", 6, 1, 7, 1))
sketch10.addConstraint(Sketcher.Constraint("Tangent", 7, 2, 0, 2))
sketch10.addConstraint(Sketcher.Constraint("Tangent", 8, 1, 9, 1))
sketch10.addConstraint(Sketcher.Constraint("Tangent", 9, 2, 10, 2))
sketch10.addConstraint(Sketcher.Constraint("Tangent", 10, 1, 11, 1))
sketch10.addConstraint(Sketcher.Constraint("Tangent", 11, 2, 12, 2))
sketch10.addConstraint(Sketcher.Constraint("Tangent", 12, 1, 13, 1))
sketch10.addConstraint(Sketcher.Constraint("Tangent", 13, 2, 14, 2))
sketch10.addConstraint(Sketcher.Constraint("Tangent", 14, 1, 15, 1))
sketch10.addConstraint(Sketcher.Constraint("Tangent", 15, 2, 8, 2))
sketch10.addConstraint(Sketcher.Constraint("Tangent", 16, 1, 17, 1))
sketch10.addConstraint(Sketcher.Constraint("Tangent", 17, 2, 18, 2))
sketch10.addConstraint(Sketcher.Constraint("Tangent", 18, 1, 19, 1))
sketch10.addConstraint(Sketcher.Constraint("Tangent", 19, 2, 20, 2))
sketch10.addConstraint(Sketcher.Constraint("Tangent", 20, 1, 21, 1))
sketch10.addConstraint(Sketcher.Constraint("Tangent", 21, 2, 22, 2))
sketch10.addConstraint(Sketcher.Constraint("Tangent", 22, 1, 23, 1))
sketch10.addConstraint(Sketcher.Constraint("Tangent", 23, 2, 16, 2))
sketch10.addConstraint(Sketcher.Constraint("Horizontal", 1))
sketch10.addConstraint(Sketcher.Constraint("Vertical", 3))
sketch10.addConstraint(Sketcher.Constraint("Horizontal", 5))
sketch10.addConstraint(Sketcher.Constraint("Vertical", 7))
sketch10.addConstraint(Sketcher.Constraint("Horizontal", 9))
sketch10.addConstraint(Sketcher.Constraint("Vertical", 11))
sketch10.addConstraint(Sketcher.Constraint("Horizontal", 13))
sketch10.addConstraint(Sketcher.Constraint("Vertical", 15))
sketch10.addConstraint(Sketcher.Constraint("Horizontal", 17))
sketch10.addConstraint(Sketcher.Constraint("Vertical", 19))
sketch10.addConstraint(Sketcher.Constraint("Horizontal", 21))
sketch10.addConstraint(Sketcher.Constraint("Vertical", 23))
sketch10.addConstraint(Sketcher.Constraint("Equal", 0, 2))
sketch10.addConstraint(Sketcher.Constraint("Equal", 2, 4))
sketch10.addConstraint(Sketcher.Constraint("Equal", 4, 6))
sketch10.addConstraint(Sketcher.Constraint("Equal", 6, 8))
sketch10.addConstraint(Sketcher.Constraint("Equal", 8, 10))
sketch10.addConstraint(Sketcher.Constraint("Equal", 10, 12))
sketch10.addConstraint(Sketcher.Constraint("Equal", 12, 14))
sketch10.addConstraint(Sketcher.Constraint("Equal", 14, 16))
sketch10.addConstraint(Sketcher.Constraint("Equal", 16, 18))
sketch10.addConstraint(Sketcher.Constraint("Equal", 18, 20))
sketch10.addConstraint(Sketcher.Constraint("Equal", 20, 22))
sketch10.addConstraint(Sketcher.Constraint("Symmetric", 14, 3, 16, 3, -1))
sketch10.addConstraint(Sketcher.Constraint("Symmetric", 10, 3, 20, 3, -1))
sketch10.addConstraint(Sketcher.Constraint("Vertical", 6, 3, 8, 3))
sketch10.addConstraint(Sketcher.Constraint("Vertical", 4, 3, 10, 3))
sketch10.addConstraint(Sketcher.Constraint("Equal", 21, 3))
sketch10.addConstraint(Sketcher.Constraint("Equal", 7, 11))
sketch10.addConstraint(Sketcher.Constraint("Radius", 0, Q("2 mm")))
sketch10.addConstraint(Sketcher.Constraint("DistanceX", 1, 1, 1, 2, Q("15 mm")))
sketch10.addConstraint(Sketcher.Constraint("DistanceY", 0, 3, 8, 3, Q("35 mm")))
sketch10.addConstraint(Sketcher.Constraint("DistanceY", 16, 3, 6, 3, Q("20 mm")))
sketch10.addConstraint(Sketcher.Constraint("DistanceX", -1, 1, 0, 3, Q("27.5 mm")))
sketch10.setExpression("Constraints[53]", "Params.sketch10_radius")
sketch10.setExpression("Constraints[54]", "Params.sketch10_width")
pocket1 = doc.addObject("PartDesign::Pocket", "Pocket")
body.addObject(pocket1)
pocket1.Profile = sketch10
pocket1.Type = "ThroughAll"
pocket1.Reversed = True

doc.recompute()
